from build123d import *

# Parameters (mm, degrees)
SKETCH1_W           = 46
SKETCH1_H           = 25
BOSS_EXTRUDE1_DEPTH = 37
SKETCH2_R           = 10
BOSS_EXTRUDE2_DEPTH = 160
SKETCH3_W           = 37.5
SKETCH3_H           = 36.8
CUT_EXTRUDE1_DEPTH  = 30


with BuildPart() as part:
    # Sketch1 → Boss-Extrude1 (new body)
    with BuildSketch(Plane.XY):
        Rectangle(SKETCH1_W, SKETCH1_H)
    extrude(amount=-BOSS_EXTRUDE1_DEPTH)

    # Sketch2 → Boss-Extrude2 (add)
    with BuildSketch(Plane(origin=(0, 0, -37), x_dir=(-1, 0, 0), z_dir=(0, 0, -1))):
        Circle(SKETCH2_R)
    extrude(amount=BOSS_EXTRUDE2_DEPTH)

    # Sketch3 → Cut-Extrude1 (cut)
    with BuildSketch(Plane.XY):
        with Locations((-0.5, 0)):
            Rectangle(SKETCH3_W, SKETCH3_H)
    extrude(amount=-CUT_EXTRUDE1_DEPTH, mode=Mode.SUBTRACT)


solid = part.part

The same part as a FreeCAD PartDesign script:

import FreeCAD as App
import Part
import Sketcher

doc = App.newDocument("Part")
body = doc.addObject("PartDesign::Body", "Body")

# Sketch on XY plane
sketch1 = doc.addObject("Sketcher::SketchObject", "Sketch")
body.addObject(sketch1)
sketch1.AttachmentSupport = (doc.XY_Plane, [""])
sketch1.MapMode = "FlatFace"
sketch1.addGeometry([
    Part.LineSegment(App.Vector(-23, 12, 0), App.Vector(-23, -12, 0)),
    Part.LineSegment(App.Vector(-23, -12, 0), App.Vector(23, -12, 0)),
    Part.LineSegment(App.Vector(23, -12, 0), App.Vector(23, 12, 0)),
    Part.LineSegment(App.Vector(23, 12, 0), App.Vector(-23, 12, 0)),
], False)
sketch1.addConstraint([
    Sketcher.Constraint("Coincident", 0, 2, 1, 1),
    Sketcher.Constraint("Coincident", 1, 2, 2, 1),
    Sketcher.Constraint("Coincident", 2, 2, 3, 1),
    Sketcher.Constraint("Coincident", 3, 2, 0, 1),
    Sketcher.Constraint("Vertical", 0),
    Sketcher.Constraint("Horizontal", 1),
    Sketcher.Constraint("Vertical", 2),
    Sketcher.Constraint("Horizontal", 3),
    Sketcher.Constraint("Symmetric", 0, 2, 2, 2, -1, 1),
    Sketcher.Constraint("DistanceX", 1, 1, 1, 2, 46.0),
    Sketcher.Constraint("DistanceY", 0, 2, 0, 1, 25.0),
])
pad1 = doc.addObject("PartDesign::Pad", "Pad")
body.addObject(pad1)
pad1.Profile = sketch1
pad1.Length = 37
pad1.Reversed = True

# Sketch on XY plane
sketch2 = doc.addObject("Sketcher::SketchObject", "Sketch001")
body.addObject(sketch2)
sketch2.AttachmentSupport = (doc.XY_Plane, [""])
sketch2.MapMode = "FlatFace"
sketch2.AttachmentOffset = App.Placement(App.Vector(0, 0, -37), App.Rotation())
sketch2.addGeometry(Part.Circle(App.Vector(0, 0, 0), App.Vector(0, 0, 1), 10), False)
sketch2.addConstraint([
    Sketcher.Constraint("Coincident", 0, 3, -1, 1),
    Sketcher.Constraint("Diameter", 0, 20.0),
])
pad2 = doc.addObject("PartDesign::Pad", "Pad001")
body.addObject(pad2)
pad2.Profile = sketch2
pad2.Length = 160
pad2.Reversed = True

# Sketch on XY plane
sketch3 = doc.addObject("Sketcher::SketchObject", "Sketch002")
body.addObject(sketch3)
sketch3.AttachmentSupport = (doc.XY_Plane, [""])
sketch3.MapMode = "FlatFace"
sketch3.addGeometry([
    Part.LineSegment(App.Vector(-19, 18, 0), App.Vector(-19, -18, 0)),
    Part.LineSegment(App.Vector(-19, -18, 0), App.Vector(18, -18, 0)),
    Part.LineSegment(App.Vector(18, -18, 0), App.Vector(18, 18, 0)),
    Part.LineSegment(App.Vector(18, 18, 0), App.Vector(-19, 18, 0)),
], False)
sketch3.addConstraint([
    Sketcher.Constraint("Coincident", 0, 2, 1, 1),
    Sketcher.Constraint("Coincident", 1, 2, 2, 1),
    Sketcher.Constraint("Coincident", 2, 2, 3, 1),
    Sketcher.Constraint("Coincident", 3, 2, 0, 1),
    Sketcher.Constraint("Vertical", 0),
    Sketcher.Constraint("Horizontal", 1),
    Sketcher.Constraint("Vertical", 2),
    Sketcher.Constraint("Horizontal", 3),
    Sketcher.Constraint("DistanceX", 1, 1, 1, 2, 37.5),
    Sketcher.Constraint("DistanceY", 0, 2, 0, 1, 36.8),
    Sketcher.Constraint("DistanceY", 0, 2, -1, 1, 18.4),
    Sketcher.Constraint("DistanceX", 0, 2, -1, 1, 19.25),
])
pocket1 = doc.addObject("PartDesign::Pocket", "Pocket")
body.addObject(pocket1)
pocket1.Profile = sketch3
pocket1.Length = 30

doc.recompute()
